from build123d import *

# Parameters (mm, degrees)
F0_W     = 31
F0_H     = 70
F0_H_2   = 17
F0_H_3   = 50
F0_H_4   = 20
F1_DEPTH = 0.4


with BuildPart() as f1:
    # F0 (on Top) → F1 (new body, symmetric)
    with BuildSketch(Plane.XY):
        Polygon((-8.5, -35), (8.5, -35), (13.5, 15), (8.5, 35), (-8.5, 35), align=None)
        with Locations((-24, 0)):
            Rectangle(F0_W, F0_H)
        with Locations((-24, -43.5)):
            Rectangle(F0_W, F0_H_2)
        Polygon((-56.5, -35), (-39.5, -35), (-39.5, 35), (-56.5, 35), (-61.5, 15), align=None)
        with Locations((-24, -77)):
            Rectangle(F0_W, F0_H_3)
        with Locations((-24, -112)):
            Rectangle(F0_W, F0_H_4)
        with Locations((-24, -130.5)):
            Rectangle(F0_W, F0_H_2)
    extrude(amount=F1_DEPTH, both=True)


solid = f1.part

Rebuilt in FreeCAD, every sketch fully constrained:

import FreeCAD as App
import Part
import Sketcher
from FreeCAD import Vector

doc = App.newDocument("Part")
body = doc.addObject("PartDesign::Body", "Body")

sketch1 = body.newObject("Sketcher::SketchObject", "Sketch")
sketch1.AttachmentSupport = (doc.getObject("XY_Plane"), [""])
sketch1.MapMode = "FlatFace"
sketch1.addGeometry(Part.LineSegment(Vector(8, -35, 0), Vector(14, 15, 0)), False)
sketch1.addGeometry(Part.LineSegment(Vector(14, 15, 0), Vector(8, 35, 0)), False)
sketch1.addGeometry(Part.LineSegment(Vector(8, 35, 0), Vector(-56, 35, 0)), False)
sketch1.addGeometry(Part.LineSegment(Vector(-56, 35, 0), Vector(-62, 15, 0)), False)
sketch1.addGeometry(Part.LineSegment(Vector(-62, 15, 0), Vector(-56, -35, 0)), False)
sketch1.addGeometry(Part.LineSegment(Vector(-56, -35, 0), Vector(-40, -35, 0)), False)
sketch1.addGeometry(Part.LineSegment(Vector(-40, -35, 0), Vector(-40, -139, 0)), False)
sketch1.addGeometry(Part.LineSegment(Vector(-40, -139, 0), Vector(-8, -139, 0)), False)
sketch1.addGeometry(Part.LineSegment(Vector(-8, -139, 0), Vector(-8, -35, 0)), False)
sketch1.addGeometry(Part.LineSegment(Vector(-8, -35, 0), Vector(8, -35, 0)), False)
sketch1.addConstraint(Sketcher.Constraint("Coincident", 0, 2, 1, 1))
sketch1.addConstraint(Sketcher.Constraint("Coincident", 1, 2, 2, 1))
sketch1.addConstraint(Sketcher.Constraint("Coincident", 2, 2, 3, 1))
sketch1.addConstraint(Sketcher.Constraint("Coincident", 3, 2, 4, 1))
sketch1.addConstraint(Sketcher.Constraint("Coincident", 4, 2, 5, 1))
sketch1.addConstraint(Sketcher.Constraint("Coincident", 5, 2, 6, 1))
sketch1.addConstraint(Sketcher.Constraint("Coincident", 6, 2, 7, 1))
sketch1.addConstraint(Sketcher.Constraint("Coincident", 7, 2, 8, 1))
sketch1.addConstraint(Sketcher.Constraint("Coincident", 8, 2, 9, 1))
sketch1.addConstraint(Sketcher.Constraint("Coincident", 9, 2, 0, 1))
sketch1.addConstraint(Sketcher.Constraint("Horizontal", 2))
sketch1.addConstraint(Sketcher.Constraint("Horizontal", 5))
sketch1.addConstraint(Sketcher.Constraint("Vertical", 6))
sketch1.addConstraint(Sketcher.Constraint("Horizontal", 7))
sketch1.addConstraint(Sketcher.Constraint("Vertical", 8))
sketch1.addConstraint(Sketcher.Constraint("Horizontal", 9))
sketch1.addConstraint(Sketcher.Constraint("Symmetric", 1, 2, 8, 2, -1, 1))
sketch1.addConstraint(Sketcher.Constraint("Symmetric", 2, 2, 4, 2, -1))
sketch1.addConstraint(Sketcher.Constraint("Horizontal", 0, 2, 3, 2))
sketch1.addConstraint(Sketcher.Constraint("Vertical", 1, 2, 9, 2))
sketch1.addConstraint(Sketcher.Constraint("Equal", 5, 9))
sketch1.addConstraint(Sketcher.Constraint("Equal", 1, 3))
sketch1.addConstraint(Sketcher.Constraint("DistanceX", 2, 2, 2, 1, 65.0))
sketch1.addConstraint(Sketcher.Constraint("DistanceX", 5, 1, 5, 2, 17.0))
sketch1.addConstraint(Sketcher.Constraint("DistanceY", 6, 2, 6, 1, 104.0))
sketch1.addConstraint(Sketcher.Constraint("DistanceY", -1, 1, 0, 2, 15.0))
sketch1.addConstraint(Sketcher.Constraint("DistanceY", -1, 1, 1, 2, 35.0))
sketch1.addConstraint(Sketcher.Constraint("DistanceX", 1, 2, 0, 2, 5.0))
pad1 = body.newObject("PartDesign::Pad", "Pad")
pad1.Profile = sketch1
pad1.Length = 0.8
pad1.Midplane = True

doc.recompute()
